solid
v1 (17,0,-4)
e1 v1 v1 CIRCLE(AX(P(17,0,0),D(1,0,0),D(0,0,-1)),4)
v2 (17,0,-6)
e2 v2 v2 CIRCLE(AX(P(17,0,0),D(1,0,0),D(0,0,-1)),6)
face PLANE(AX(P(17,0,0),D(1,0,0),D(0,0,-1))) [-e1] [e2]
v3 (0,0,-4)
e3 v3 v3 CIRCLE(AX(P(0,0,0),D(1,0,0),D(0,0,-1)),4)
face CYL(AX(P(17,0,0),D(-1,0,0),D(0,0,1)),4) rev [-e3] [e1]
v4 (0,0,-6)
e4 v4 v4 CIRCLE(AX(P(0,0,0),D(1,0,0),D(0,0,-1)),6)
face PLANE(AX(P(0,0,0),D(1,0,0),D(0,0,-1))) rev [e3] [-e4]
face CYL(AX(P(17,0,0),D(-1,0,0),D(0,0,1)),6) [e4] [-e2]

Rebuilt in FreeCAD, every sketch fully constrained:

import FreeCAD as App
import Part
import Sketcher
Q = App.Units.Quantity

doc = App.newDocument("Part")
params = doc.addObject("Spreadsheet::Sheet", "Params")
for row, (alias, value) in enumerate([
    ("sketch1_diameter", "12 mm"),
    ("sketch1_diameter2", "8 mm"),
    ("pad1_length", "17 mm"),
], start=1):
    params.set(f"A{row}", alias)
    params.set(f"B{row}", "=" + value)
    params.setAlias(f"B{row}", alias)

body = doc.addObject("PartDesign::Body", "Body")

# Sketch on YZ plane
sketch1 = body.newObject("Sketcher::SketchObject", "Sketch")
sketch1.AttachmentSupport = (doc.getObject("YZ_Plane"), [""])
sketch1.MapMode = "FlatFace"
sketch1.addGeometry(Part.Circle(App.Vector(0, 0, 0), App.Vector(0, 0, 1), 6), False)
sketch1.addGeometry(Part.Circle(App.Vector(0, 0, 0), App.Vector(0, 0, 1), 4), False)
sketch1.addConstraint(Sketcher.Constraint("Coincident", 0, 3, -1, 1))
sketch1.addConstraint(Sketcher.Constraint("Coincident", 1, 3, -1, 1))
sketch1.addConstraint(Sketcher.Constraint("Diameter", 0, Q("12 mm")))
sketch1.addConstraint(Sketcher.Constraint("Diameter", 1, Q("8 mm")))
sketch1.setExpression("Constraints[2]", "Params.sketch1_diameter")
sketch1.setExpression("Constraints[3]", "Params.sketch1_diameter2")
pad1 = body.newObject("PartDesign::Pad", "Pad")
pad1.Profile = sketch1
pad1.setExpression("Length", "Params.pad1_length")

doc.recompute()
